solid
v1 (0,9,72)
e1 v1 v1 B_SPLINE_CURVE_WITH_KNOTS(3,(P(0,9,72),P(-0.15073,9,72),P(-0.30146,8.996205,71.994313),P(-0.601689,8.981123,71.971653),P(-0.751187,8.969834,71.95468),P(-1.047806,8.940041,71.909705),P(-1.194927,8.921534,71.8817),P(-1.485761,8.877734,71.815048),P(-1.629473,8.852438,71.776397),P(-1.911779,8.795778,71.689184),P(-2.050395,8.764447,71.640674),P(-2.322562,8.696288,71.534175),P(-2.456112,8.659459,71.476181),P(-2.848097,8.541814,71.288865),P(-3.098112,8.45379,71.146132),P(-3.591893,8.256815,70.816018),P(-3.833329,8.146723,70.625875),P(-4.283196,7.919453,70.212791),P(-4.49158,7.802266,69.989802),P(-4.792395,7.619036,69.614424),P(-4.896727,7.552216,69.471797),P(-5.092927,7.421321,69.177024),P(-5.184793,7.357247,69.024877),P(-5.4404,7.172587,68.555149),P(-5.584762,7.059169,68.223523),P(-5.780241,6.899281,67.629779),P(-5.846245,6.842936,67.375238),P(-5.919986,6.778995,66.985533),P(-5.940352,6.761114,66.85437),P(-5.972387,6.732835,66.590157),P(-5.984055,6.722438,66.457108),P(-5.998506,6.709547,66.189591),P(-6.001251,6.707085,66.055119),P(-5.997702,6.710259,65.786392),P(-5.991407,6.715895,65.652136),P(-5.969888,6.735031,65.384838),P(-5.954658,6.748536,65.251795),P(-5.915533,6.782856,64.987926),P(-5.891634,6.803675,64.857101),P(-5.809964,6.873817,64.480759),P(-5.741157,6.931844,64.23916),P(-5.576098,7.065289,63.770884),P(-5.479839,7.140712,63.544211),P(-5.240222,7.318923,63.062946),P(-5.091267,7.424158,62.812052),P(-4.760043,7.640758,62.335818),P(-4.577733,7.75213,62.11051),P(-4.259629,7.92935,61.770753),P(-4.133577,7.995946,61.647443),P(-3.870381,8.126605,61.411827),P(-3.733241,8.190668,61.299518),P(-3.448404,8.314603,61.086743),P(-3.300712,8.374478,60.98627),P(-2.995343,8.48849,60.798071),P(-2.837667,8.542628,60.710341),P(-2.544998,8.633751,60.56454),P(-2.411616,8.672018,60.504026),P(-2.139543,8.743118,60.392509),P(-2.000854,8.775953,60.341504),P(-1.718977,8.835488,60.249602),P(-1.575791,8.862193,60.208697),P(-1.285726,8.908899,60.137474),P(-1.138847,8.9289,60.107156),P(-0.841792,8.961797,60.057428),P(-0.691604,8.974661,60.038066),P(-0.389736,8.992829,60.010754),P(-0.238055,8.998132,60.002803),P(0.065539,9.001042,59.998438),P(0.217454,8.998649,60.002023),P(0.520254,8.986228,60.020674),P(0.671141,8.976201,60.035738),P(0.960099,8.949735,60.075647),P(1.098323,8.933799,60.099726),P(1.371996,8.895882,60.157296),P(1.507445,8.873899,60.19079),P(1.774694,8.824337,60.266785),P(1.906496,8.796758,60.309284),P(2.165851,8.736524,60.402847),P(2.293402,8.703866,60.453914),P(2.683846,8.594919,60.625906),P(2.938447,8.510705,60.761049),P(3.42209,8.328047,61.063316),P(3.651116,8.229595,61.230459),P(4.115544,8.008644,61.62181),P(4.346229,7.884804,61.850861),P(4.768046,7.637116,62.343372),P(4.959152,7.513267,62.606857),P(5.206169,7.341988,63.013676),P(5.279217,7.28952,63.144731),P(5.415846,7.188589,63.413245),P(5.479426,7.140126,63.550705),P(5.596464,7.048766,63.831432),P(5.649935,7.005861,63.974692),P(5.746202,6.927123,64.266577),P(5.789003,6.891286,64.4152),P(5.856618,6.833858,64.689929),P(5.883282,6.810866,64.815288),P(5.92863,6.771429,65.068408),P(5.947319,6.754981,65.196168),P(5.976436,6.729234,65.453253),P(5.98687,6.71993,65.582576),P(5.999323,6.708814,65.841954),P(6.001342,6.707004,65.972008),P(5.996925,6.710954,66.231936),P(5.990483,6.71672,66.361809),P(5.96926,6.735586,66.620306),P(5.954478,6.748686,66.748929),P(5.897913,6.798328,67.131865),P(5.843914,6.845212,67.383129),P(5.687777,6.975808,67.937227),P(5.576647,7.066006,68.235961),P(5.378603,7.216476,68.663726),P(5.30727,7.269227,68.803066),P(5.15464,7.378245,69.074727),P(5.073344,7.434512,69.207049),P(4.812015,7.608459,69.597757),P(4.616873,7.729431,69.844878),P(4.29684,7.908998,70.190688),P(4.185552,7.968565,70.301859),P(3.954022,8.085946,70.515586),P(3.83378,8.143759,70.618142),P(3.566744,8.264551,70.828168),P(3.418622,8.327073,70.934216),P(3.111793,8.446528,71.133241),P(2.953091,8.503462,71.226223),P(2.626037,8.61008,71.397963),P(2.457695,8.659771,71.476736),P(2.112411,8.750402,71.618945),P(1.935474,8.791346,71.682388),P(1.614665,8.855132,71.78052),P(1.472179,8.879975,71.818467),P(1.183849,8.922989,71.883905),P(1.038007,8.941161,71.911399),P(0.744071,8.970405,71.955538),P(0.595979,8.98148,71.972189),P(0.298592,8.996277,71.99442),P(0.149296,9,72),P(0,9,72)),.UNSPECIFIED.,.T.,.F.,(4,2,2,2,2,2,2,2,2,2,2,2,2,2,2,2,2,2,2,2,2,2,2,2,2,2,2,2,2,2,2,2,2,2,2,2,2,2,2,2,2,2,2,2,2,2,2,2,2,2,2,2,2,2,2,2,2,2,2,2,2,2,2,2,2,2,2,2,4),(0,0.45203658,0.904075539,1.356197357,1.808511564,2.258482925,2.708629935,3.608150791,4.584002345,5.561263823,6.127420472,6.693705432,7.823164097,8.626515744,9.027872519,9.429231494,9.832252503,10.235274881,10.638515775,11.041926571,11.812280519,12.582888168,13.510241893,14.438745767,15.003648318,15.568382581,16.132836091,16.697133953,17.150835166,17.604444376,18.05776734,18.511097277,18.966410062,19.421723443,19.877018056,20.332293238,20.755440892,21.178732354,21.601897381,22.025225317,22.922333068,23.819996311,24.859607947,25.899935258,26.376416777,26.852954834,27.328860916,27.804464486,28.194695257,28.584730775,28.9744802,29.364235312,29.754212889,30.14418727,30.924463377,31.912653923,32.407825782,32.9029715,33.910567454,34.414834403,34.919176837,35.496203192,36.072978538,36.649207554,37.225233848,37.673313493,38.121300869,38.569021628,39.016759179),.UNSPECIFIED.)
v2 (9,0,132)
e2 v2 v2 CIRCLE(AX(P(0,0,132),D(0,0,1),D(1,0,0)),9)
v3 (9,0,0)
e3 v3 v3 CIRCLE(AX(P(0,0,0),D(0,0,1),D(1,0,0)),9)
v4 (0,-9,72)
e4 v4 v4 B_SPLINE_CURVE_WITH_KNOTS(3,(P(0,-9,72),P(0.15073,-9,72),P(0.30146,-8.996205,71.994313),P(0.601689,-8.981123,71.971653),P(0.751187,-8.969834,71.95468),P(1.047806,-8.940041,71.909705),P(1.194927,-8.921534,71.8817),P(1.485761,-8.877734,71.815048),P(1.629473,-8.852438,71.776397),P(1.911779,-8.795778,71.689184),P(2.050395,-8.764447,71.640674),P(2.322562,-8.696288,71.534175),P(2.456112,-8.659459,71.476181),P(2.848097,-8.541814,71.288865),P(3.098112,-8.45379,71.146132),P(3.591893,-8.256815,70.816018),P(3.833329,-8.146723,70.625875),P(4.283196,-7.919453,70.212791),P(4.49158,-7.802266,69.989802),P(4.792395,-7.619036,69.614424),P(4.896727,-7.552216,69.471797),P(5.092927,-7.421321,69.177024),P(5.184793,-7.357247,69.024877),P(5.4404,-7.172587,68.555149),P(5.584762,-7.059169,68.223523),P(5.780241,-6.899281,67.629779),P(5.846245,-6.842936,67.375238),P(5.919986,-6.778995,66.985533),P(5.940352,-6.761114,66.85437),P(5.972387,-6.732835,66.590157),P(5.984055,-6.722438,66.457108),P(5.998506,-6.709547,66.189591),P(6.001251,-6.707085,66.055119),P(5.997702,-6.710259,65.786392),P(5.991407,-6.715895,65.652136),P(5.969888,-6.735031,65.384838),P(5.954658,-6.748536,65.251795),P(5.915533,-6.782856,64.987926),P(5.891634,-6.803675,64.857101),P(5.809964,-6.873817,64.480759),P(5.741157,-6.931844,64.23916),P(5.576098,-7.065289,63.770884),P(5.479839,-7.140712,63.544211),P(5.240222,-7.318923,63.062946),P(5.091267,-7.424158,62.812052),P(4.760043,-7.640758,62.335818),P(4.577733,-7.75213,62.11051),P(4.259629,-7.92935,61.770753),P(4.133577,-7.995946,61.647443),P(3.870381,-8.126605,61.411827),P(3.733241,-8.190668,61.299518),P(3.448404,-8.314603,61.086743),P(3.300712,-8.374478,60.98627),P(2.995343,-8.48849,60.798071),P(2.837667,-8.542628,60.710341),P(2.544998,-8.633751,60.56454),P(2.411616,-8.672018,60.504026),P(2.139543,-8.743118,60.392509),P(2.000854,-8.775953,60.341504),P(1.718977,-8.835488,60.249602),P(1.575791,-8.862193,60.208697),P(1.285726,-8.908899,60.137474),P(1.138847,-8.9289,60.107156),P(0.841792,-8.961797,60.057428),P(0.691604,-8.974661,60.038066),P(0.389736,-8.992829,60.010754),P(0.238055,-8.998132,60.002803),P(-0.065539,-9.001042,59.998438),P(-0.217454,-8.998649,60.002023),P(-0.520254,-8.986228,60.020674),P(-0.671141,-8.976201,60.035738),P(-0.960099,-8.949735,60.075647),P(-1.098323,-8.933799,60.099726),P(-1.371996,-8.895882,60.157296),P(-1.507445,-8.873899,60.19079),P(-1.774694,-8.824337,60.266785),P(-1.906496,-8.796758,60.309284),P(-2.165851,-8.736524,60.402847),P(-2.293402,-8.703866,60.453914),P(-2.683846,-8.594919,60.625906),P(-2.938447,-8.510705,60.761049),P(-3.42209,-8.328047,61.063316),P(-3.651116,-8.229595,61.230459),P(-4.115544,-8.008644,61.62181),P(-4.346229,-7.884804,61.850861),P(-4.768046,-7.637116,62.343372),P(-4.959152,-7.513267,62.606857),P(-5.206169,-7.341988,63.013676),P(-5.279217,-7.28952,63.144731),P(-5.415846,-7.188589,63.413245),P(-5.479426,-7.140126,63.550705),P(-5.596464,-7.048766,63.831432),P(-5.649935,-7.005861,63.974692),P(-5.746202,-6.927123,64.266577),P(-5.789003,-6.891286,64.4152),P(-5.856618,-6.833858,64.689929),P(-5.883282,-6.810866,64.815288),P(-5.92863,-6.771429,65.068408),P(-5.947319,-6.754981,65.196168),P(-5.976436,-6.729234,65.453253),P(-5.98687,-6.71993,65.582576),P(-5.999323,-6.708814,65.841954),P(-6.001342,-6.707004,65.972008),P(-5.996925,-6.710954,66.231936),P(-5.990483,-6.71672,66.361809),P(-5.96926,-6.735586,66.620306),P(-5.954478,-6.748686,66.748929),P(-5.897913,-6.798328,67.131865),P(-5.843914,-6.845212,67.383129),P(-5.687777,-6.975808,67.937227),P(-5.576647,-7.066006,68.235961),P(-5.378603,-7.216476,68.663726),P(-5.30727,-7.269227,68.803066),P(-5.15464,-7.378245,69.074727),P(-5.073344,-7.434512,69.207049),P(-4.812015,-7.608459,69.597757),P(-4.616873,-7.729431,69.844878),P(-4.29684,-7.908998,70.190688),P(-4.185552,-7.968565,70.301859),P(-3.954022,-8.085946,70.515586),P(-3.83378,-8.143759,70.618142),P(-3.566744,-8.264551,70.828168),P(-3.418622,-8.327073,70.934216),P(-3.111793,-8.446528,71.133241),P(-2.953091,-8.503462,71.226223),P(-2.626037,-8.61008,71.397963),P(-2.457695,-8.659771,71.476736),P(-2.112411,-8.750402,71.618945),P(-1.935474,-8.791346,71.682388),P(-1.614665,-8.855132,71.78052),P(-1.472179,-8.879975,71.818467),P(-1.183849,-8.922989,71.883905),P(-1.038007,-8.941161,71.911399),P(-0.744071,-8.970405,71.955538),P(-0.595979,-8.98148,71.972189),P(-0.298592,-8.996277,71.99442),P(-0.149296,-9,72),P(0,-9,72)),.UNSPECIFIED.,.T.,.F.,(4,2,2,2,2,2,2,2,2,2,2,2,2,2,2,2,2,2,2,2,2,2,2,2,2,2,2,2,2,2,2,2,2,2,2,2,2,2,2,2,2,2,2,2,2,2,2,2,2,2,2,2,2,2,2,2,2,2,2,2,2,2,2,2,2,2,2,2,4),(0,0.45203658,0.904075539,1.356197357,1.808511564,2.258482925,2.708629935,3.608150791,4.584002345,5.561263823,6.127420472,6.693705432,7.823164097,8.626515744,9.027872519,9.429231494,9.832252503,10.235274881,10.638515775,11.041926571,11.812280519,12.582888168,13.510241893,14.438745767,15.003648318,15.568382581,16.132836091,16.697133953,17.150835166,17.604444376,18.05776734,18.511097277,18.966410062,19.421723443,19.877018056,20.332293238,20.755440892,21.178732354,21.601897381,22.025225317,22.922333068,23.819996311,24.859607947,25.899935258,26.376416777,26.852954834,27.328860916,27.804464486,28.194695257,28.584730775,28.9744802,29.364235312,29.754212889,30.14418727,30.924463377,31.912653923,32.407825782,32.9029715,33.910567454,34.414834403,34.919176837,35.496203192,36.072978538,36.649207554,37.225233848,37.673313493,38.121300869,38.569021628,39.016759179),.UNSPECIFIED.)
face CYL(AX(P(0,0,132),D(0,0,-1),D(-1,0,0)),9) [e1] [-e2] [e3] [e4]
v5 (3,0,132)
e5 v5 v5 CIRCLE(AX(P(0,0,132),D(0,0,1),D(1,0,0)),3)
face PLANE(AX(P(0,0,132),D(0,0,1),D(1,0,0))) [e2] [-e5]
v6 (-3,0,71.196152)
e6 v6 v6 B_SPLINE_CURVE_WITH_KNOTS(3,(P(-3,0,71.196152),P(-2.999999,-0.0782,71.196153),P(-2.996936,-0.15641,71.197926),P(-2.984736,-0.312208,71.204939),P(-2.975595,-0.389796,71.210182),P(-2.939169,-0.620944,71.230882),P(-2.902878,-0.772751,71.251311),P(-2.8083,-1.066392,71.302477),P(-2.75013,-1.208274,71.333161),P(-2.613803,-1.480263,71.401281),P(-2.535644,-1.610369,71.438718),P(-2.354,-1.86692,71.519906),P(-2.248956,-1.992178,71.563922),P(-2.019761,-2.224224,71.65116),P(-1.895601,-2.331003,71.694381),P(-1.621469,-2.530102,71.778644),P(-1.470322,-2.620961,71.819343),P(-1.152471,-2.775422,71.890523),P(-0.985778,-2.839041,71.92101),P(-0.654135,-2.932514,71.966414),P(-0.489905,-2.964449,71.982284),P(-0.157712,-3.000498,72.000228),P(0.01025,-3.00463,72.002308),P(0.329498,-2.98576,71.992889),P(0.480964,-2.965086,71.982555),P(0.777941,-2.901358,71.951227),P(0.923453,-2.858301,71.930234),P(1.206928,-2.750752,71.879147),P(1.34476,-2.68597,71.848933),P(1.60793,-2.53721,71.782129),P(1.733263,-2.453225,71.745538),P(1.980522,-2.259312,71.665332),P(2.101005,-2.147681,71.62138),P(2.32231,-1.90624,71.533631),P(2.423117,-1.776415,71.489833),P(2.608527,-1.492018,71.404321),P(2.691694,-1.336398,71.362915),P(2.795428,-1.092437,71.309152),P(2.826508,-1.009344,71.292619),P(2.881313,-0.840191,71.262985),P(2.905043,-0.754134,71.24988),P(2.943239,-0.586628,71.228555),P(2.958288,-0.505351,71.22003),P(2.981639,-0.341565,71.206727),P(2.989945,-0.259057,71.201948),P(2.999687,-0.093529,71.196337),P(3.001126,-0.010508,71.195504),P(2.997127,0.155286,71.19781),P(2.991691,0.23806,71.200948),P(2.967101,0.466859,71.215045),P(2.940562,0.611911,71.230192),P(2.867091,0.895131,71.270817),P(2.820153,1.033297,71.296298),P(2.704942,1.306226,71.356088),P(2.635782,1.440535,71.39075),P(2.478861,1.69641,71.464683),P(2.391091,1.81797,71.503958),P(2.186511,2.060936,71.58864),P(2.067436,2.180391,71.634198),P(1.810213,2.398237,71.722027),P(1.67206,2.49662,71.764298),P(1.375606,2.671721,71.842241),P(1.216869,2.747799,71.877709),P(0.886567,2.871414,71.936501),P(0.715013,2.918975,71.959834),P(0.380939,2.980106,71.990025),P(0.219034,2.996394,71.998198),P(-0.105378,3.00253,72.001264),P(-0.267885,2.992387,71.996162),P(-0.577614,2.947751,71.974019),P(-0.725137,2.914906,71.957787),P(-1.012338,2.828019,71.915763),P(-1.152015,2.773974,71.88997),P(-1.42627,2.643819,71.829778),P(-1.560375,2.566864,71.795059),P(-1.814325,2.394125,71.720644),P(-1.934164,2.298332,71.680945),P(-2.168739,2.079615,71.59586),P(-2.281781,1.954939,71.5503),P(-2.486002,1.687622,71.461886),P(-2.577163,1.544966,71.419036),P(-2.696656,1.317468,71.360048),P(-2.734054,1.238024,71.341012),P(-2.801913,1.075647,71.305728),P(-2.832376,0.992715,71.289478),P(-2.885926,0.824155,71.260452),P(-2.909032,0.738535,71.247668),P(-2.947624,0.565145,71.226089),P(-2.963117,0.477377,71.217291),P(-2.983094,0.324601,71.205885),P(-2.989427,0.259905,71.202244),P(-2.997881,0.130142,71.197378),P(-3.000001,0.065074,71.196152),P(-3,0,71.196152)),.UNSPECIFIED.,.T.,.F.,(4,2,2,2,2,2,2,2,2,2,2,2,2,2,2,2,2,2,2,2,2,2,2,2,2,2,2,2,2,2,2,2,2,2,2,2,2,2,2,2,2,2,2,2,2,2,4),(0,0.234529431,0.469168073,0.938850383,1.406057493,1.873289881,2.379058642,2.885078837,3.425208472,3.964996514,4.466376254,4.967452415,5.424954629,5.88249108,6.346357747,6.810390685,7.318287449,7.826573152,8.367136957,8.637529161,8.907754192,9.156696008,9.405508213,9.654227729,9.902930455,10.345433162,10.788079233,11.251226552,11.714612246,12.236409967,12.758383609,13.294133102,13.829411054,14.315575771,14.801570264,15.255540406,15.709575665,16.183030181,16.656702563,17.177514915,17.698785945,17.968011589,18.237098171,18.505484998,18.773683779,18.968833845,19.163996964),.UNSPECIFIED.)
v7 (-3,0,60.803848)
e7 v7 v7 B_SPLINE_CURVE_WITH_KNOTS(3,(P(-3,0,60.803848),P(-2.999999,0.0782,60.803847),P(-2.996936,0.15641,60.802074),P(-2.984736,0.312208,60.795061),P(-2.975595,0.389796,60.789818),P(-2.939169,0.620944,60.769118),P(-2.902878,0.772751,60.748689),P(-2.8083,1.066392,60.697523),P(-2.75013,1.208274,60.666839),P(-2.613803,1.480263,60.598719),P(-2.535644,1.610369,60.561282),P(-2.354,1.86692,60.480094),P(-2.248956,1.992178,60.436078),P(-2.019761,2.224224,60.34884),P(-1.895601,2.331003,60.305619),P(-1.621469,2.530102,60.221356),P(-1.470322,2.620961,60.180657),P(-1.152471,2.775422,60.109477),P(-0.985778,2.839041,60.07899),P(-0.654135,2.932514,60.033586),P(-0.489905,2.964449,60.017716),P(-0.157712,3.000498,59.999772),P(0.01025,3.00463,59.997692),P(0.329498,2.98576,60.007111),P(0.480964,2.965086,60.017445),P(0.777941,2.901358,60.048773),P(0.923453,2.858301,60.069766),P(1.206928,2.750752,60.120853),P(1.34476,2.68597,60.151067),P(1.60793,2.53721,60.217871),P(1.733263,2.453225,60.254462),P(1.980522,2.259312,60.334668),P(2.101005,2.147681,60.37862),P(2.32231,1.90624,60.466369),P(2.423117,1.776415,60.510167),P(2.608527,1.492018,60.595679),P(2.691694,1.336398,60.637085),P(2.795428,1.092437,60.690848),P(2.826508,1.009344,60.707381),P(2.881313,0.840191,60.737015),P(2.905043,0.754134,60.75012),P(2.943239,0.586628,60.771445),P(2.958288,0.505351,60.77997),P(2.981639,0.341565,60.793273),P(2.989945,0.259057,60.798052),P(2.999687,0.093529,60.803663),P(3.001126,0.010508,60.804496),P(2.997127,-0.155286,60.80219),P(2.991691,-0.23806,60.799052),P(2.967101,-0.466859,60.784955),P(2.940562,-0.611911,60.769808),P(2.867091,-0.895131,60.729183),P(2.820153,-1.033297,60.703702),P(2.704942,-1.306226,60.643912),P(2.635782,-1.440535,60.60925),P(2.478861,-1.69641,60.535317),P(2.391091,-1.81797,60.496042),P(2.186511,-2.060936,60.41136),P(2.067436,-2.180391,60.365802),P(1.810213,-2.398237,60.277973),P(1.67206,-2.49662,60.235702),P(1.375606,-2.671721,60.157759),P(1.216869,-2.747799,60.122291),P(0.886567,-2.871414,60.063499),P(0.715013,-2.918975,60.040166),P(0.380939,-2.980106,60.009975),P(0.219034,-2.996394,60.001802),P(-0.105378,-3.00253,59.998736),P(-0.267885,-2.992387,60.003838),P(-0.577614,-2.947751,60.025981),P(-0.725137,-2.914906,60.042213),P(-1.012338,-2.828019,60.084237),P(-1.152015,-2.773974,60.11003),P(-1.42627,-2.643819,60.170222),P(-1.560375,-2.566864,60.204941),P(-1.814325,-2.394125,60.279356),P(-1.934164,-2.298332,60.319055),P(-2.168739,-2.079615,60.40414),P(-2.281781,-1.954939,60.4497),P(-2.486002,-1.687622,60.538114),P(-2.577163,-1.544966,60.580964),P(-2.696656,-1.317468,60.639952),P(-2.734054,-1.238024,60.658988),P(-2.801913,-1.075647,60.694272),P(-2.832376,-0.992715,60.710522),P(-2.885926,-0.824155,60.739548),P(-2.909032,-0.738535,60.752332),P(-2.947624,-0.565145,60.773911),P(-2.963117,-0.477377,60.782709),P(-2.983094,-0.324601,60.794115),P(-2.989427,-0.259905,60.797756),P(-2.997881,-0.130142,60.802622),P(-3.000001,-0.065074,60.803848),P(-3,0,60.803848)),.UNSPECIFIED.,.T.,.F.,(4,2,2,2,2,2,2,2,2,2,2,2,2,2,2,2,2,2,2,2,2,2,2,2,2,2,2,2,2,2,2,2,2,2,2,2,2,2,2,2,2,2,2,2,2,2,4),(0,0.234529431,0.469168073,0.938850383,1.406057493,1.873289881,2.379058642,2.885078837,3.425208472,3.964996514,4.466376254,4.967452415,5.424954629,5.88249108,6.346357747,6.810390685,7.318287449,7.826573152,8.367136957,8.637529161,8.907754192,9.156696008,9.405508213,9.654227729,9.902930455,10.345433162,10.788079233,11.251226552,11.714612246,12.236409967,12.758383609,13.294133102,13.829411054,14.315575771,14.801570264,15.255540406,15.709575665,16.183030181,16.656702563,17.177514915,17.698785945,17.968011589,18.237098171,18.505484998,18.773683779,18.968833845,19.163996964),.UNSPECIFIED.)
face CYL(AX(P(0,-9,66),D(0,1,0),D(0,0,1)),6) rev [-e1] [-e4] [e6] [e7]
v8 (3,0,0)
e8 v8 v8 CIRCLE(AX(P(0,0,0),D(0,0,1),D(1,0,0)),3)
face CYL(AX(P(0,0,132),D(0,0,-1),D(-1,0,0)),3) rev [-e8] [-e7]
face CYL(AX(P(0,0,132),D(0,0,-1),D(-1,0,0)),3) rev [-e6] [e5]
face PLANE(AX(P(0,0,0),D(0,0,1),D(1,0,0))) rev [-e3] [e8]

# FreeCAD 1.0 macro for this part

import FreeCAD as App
import Part
import Sketcher

V = App.Vector

doc = App.newDocument("Part")
params = doc.addObject("Spreadsheet::Sheet", "Params")
for row, (alias, value) in enumerate([
    ("sketch1_diameter", "18 mm"),
    ("sketch1_diameter2", "6 mm"),
    ("pad1_length", "132 mm"),
    ("sketch2_diameter", "12 mm"),
], start=1):
    params.set(f"A{row}", alias)
    params.set(f"B{row}", "=" + value)
    params.setAlias(f"B{row}", alias)

body = doc.addObject("PartDesign::Body", "Body")

sketch1 = doc.addObject("Sketcher::SketchObject", "Sketch")
body.addObject(sketch1)
sketch1.AttachmentSupport = (doc.XY_Plane, [""])
sketch1.MapMode = "FlatFace"
sketch1.addGeometry(Part.Circle(V(0, 0, 0), V(0, 0, 1), 9), False)
sketch1.addGeometry(Part.Circle(V(0, 0, 0), V(0, 0, 1), 3), False)
sketch1.addConstraint(Sketcher.Constraint("Coincident", 0, 3, -1, 1))
sketch1.addConstraint(Sketcher.Constraint("Coincident", 1, 3, -1, 1))
sketch1.addConstraint(Sketcher.Constraint("Diameter", 0, 18.0))
sketch1.addConstraint(Sketcher.Constraint("Diameter", 1, 6.0))
sketch1.setExpression("Constraints[2]", "Params.sketch1_diameter")
sketch1.setExpression("Constraints[3]", "Params.sketch1_diameter2")
pad1 = doc.addObject("PartDesign::Pad", "Pad")
body.addObject(pad1)
pad1.Profile = sketch1
pad1.setExpression("Length", "Params.pad1_length")

sketch2 = doc.addObject("Sketcher::SketchObject", "Sketch001")
body.addObject(sketch2)
sketch2.AttachmentSupport = (doc.XZ_Plane, [""])
sketch2.MapMode = "FlatFace"
sketch2.addGeometry(Part.Circle(V(0, 66, 0), V(0, 0, 1), 6), False)
sketch2.addConstraint(Sketcher.Constraint("PointOnObject", 0, 3, -2))
sketch2.addConstraint(Sketcher.Constraint("Diameter", 0, 12.0))
sketch2.addConstraint(Sketcher.Constraint("DistanceY", -1, 1, 0, 3, 66.0))
sketch2.setExpression("Constraints[1]", "Params.sketch2_diameter")
pocket1 = doc.addObject("PartDesign::Pocket", "Pocket")
body.addObject(pocket1)
pocket1.Profile = sketch2
pocket1.Type = "ThroughAll"
pocket1.Midplane = True

doc.recompute()
